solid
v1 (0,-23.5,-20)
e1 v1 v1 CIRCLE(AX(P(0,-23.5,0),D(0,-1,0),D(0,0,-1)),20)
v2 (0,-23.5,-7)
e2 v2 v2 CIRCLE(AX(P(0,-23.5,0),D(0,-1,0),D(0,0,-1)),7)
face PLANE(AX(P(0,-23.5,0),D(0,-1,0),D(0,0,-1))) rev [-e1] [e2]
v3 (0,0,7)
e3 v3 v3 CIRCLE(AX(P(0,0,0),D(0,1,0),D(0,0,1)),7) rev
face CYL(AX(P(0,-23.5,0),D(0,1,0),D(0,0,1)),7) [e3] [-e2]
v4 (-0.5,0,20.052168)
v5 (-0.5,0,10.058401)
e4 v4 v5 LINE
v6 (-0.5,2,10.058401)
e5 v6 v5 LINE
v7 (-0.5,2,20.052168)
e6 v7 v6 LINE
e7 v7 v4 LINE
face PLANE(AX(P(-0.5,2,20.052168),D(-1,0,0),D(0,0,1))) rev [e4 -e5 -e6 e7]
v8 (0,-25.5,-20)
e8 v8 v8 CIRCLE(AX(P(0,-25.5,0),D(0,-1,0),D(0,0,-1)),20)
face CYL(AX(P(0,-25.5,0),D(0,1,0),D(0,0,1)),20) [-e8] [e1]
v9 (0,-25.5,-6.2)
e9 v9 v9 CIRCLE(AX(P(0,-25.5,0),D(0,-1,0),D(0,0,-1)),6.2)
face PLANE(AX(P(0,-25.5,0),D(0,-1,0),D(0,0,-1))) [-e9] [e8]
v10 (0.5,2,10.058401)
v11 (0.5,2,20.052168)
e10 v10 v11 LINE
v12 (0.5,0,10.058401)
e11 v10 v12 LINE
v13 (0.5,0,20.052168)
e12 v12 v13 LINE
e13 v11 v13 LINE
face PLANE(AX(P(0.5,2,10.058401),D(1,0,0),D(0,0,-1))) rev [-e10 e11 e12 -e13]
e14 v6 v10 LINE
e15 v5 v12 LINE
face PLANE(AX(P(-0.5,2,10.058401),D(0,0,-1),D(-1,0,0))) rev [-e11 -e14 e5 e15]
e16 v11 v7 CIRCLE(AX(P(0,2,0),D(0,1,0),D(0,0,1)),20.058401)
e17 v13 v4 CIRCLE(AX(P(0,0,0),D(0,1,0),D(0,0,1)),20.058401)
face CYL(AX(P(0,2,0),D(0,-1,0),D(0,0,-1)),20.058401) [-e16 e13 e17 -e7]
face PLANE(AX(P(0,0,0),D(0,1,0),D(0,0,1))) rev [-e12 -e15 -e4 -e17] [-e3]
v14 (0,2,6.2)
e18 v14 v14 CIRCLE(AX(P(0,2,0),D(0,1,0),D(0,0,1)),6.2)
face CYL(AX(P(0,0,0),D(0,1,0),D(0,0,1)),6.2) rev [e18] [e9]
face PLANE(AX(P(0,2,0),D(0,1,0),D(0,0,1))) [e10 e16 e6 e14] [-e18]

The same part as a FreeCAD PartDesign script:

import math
import FreeCAD as App
import Part
import Sketcher
from FreeCAD import Vector
Q = App.Units.Quantity

doc = App.newDocument("Part")
body = doc.addObject("PartDesign::Body", "Body")

sketch1 = body.newObject("Sketcher::SketchObject", "Sketch")
sketch1.AttachmentSupport = (doc.getObject("XZ_Plane"), [""])
sketch1.MapMode = "FlatFace"
sketch1.addGeometry(Part.LineSegment(Vector(-0.5, 20.1, 0), Vector(-0.5, 10.1, 0)), False)
sketch1.addGeometry(Part.LineSegment(Vector(-0.5, 10.1, 0), Vector(0.5, 10.1, 0)), False)
sketch1.addGeometry(Part.LineSegment(Vector(0.5, 10.1, 0), Vector(0.5, 20.1, 0)), False)
sketch1.addGeometry(Part.ArcOfCircle(Part.Circle(Vector(0, 0, 0), Vector(0, 0, 1), 20.1), math.radians(91), math.radians(449)), False)
sketch1.addConstraint(Sketcher.Constraint("Coincident", 0, 2, 1, 1))
sketch1.addConstraint(Sketcher.Constraint("Coincident", 1, 2, 2, 1))
sketch1.addConstraint(Sketcher.Constraint("Coincident", 2, 2, 3, 2))
sketch1.addConstraint(Sketcher.Constraint("Coincident", 3, 1, 0, 1))
sketch1.addConstraint(Sketcher.Constraint("Vertical", 0))
sketch1.addConstraint(Sketcher.Constraint("Horizontal", 1))
sketch1.addConstraint(Sketcher.Constraint("Vertical", 2))
sketch1.addConstraint(Sketcher.Constraint("Coincident", 3, 3, -1, 1))
sketch1.addConstraint(Sketcher.Constraint("Horizontal", 2, 2, 3, 1))
sketch1.addConstraint(Sketcher.Constraint("DistanceX", 1, 1, 1, 2, Q("1 mm")))
sketch1.addConstraint(Sketcher.Constraint("Radius", 3, Q("20.058401 mm")))
sketch1.addConstraint(Sketcher.Constraint("DistanceY", -1, 1, 0, 2, Q("10.058401 mm")))
pad1 = body.newObject("PartDesign::Pad", "Pad")
pad1.Profile = sketch1
pad1.Length = 2
pad1.Reversed = True

sketch2 = body.newObject("Sketcher::SketchObject", "Sketch001")
sketch2.AttachmentSupport = (doc.getObject("XZ_Plane"), [""])
sketch2.MapMode = "FlatFace"
sketch2.AttachmentOffset = App.Placement(Vector(0, 0, -2), App.Rotation())
sketch2.addGeometry(Part.Circle(Vector(0, 0, 0), Vector(0, 0, 1), 6), False)
sketch2.addConstraint(Sketcher.Constraint("Coincident", 0, 3, -1, 1))
sketch2.addConstraint(Sketcher.Constraint("Diameter", 0, Q("12.4 mm")))
pocket1 = body.newObject("PartDesign::Pocket", "Pocket")
pocket1.Profile = sketch2
pocket1.Length = 2
pocket1.Reversed = True

sketch3 = body.newObject("Sketcher::SketchObject", "Sketch002")
sketch3.AttachmentSupport = (doc.getObject("XZ_Plane"), [""])
sketch3.MapMode = "FlatFace"
sketch3.addGeometry(Part.Circle(Vector(0, 0, 0), Vector(0, 0, 1), 7), False)
sketch3.addConstraint(Sketcher.Constraint("Coincident", 0, 3, -1, 1))
sketch3.addConstraint(Sketcher.Constraint("Diameter", 0, Q("14 mm")))
pad2 = body.newObject("PartDesign::Pad", "Pad001")
pad2.Profile = sketch3
pad2.Length = 23.5

sketch4 = body.newObject("Sketcher::SketchObject", "Sketch003")
sketch4.AttachmentSupport = (doc.getObject("XZ_Plane"), [""])
sketch4.MapMode = "FlatFace"
sketch4.addGeometry(Part.Circle(Vector(0, 0, 0), Vector(0, 0, 1), 6), False)
sketch4.addConstraint(Sketcher.Constraint("Coincident", 0, 3, -1, 1))
sketch4.addConstraint(Sketcher.Constraint("Diameter", 0, Q("12.4 mm")))
pocket2 = body.newObject("PartDesign::Pocket", "Pocket001")
pocket2.Profile = sketch4
pocket2.Length = 23.5
pocket2.Reversed = True

sketch5 = body.newObject("Sketcher::SketchObject", "Sketch004")
sketch5.AttachmentSupport = (doc.getObject("XZ_Plane"), [""])
sketch5.MapMode = "FlatFace"
sketch5.AttachmentOffset = App.Placement(Vector(0, 0, 23.5), App.Rotation())
sketch5.addGeometry(Part.Circle(Vector(0, 0, 0), Vector(0, 0, 1), 20), False)
sketch5.addConstraint(Sketcher.Constraint("Coincident", 0, 3, -1, 1))
sketch5.addConstraint(Sketcher.Constraint("Diameter", 0, Q("40 mm")))
pad3 = body.newObject("PartDesign::Pad", "Pad002")
pad3.Profile = sketch5
pad3.Length = 2

sketch6 = body.newObject("Sketcher::SketchObject", "Sketch005")
sketch6.AttachmentSupport = (doc.getObject("XZ_Plane"), [""])
sketch6.MapMode = "FlatFace"
sketch6.AttachmentOffset = App.Placement(Vector(0, 0, 25.5), App.Rotation())
sketch6.addGeometry(Part.Circle(Vector(0, 0, 0), Vector(0, 0, 1), 6), False)
sketch6.addConstraint(Sketcher.Constraint("Coincident", 0, 3, -1, 1))
sketch6.addConstraint(Sketcher.Constraint("Diameter", 0, Q("12.4 mm")))
pocket3 = body.newObject("PartDesign::Pocket", "Pocket002")
pocket3.Profile = sketch6
pocket3.Length = 2

doc.recompute()
